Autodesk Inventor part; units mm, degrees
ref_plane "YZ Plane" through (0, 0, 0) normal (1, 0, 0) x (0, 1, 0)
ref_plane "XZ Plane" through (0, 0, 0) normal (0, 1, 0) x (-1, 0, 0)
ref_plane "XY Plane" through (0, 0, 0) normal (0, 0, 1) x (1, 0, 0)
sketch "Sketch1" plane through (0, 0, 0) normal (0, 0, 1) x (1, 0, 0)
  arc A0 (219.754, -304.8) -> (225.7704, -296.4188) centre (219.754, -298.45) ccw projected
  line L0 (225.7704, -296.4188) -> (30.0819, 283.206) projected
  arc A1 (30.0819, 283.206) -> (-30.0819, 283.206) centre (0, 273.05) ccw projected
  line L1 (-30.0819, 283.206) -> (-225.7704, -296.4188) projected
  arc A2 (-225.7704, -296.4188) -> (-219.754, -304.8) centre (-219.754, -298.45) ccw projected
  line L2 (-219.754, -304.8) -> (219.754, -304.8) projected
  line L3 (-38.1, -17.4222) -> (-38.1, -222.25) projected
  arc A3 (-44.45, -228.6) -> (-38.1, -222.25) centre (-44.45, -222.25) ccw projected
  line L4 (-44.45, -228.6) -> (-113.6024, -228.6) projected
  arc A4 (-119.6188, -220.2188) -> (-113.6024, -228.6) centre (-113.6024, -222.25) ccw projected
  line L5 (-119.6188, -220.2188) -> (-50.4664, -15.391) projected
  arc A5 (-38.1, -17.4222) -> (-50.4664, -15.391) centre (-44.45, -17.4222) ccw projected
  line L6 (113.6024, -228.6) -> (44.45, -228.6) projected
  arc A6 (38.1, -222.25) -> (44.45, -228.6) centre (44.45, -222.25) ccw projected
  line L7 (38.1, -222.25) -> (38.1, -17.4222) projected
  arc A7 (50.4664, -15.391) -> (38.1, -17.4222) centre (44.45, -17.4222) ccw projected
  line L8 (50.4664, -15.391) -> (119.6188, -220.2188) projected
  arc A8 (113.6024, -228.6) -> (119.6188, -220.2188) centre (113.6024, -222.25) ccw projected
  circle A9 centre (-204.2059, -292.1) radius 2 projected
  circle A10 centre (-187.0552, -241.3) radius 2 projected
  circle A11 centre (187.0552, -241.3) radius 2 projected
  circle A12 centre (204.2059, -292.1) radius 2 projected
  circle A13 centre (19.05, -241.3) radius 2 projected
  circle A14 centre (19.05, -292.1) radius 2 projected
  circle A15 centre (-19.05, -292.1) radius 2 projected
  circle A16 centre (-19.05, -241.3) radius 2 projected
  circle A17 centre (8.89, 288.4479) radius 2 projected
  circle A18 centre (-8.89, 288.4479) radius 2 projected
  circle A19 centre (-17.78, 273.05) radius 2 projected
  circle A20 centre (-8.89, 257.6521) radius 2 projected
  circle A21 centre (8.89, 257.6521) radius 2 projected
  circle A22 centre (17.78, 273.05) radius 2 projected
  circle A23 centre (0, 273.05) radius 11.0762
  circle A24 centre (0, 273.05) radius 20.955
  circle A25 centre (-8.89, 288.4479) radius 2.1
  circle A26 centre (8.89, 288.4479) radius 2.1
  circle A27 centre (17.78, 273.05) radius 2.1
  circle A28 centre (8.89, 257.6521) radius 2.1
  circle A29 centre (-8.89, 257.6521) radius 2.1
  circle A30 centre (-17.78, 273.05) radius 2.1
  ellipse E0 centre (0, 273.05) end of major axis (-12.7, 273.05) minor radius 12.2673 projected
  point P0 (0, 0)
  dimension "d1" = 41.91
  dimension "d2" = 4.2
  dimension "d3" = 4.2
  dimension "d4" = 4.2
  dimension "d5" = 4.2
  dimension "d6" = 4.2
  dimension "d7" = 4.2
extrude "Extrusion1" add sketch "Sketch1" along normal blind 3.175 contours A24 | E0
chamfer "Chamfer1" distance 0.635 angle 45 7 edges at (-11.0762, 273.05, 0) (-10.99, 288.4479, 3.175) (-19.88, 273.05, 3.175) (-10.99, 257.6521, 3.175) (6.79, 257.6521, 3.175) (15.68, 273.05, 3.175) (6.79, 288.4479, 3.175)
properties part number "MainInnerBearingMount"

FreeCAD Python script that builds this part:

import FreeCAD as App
import Part
import Sketcher
from FreeCAD import Vector
Q = App.Units.Quantity


def edges_at(feature, points):
    """Names of the edges that pass closest to the given points."""
    edges = feature.Shape.Edges
    near = lambda p: min(range(len(edges)), key=lambda i: edges[i].distToShape(Part.Vertex(*p))[0])
    return sorted({f"Edge{near(p) + 1}" for p in points})

doc = App.newDocument("Part")
body = doc.addObject("PartDesign::Body", "Body")

# Sketch on XY plane
sketch1 = body.newObject("Sketcher::SketchObject", "Sketch")
sketch1.AttachmentSupport = (doc.getObject("XY_Plane"), [""])
sketch1.MapMode = "FlatFace"
sketch1.addGeometry([
    Part.Circle(Vector(0, 273.1, 0), Vector(0, 0, 1), 21),  # 0
    Part.Circle(Vector(-8.9, 257.7, 0), Vector(0, 0, 1), 2.1),  # 1
    Part.Circle(Vector(-17.8, 273.1, 0), Vector(0, 0, 1), 2.1),  # 2
    Part.Circle(Vector(-8.9, 288.4, 0), Vector(0, 0, 1), 2.1),  # 3
    Part.Circle(Vector(8.9, 257.7, 0), Vector(0, 0, 1), 2.1),  # 4
    Part.Circle(Vector(17.8, 273.1, 0), Vector(0, 0, 1), 2.1),  # 5
    Part.Circle(Vector(8.9, 288.4, 0), Vector(0, 0, 1), 2.1),  # 6
    Part.Circle(Vector(0, 273.1, 0), Vector(0, 0, 1), 11.1),  # 7
], False)
sketch1.addConstraint([
    Sketcher.Constraint("Coincident", 7, 3, 0, 3),
    Sketcher.Constraint("Equal", 1, 2),
    Sketcher.Constraint("Equal", 2, 3),
    Sketcher.Constraint("Equal", 3, 4),
    Sketcher.Constraint("Equal", 4, 5),
    Sketcher.Constraint("Equal", 5, 6),
    Sketcher.Constraint("Symmetric", 1, 3, 4, 3, -2),
    Sketcher.Constraint("Symmetric", 2, 3, 5, 3, -2),
    Sketcher.Constraint("Symmetric", 3, 3, 6, 3, -2),
    Sketcher.Constraint("PointOnObject", 0, 3, -2),
    Sketcher.Constraint("Horizontal", 0, 3, 2, 3),
    Sketcher.Constraint("Vertical", 1, 3, 3, 3),
    Sketcher.Constraint("Diameter", 0, Q("1.65 in")),
    Sketcher.Constraint("Diameter", 1, Q("4.2 mm")),
    Sketcher.Constraint("DistanceX", 2, 3, -1, 1, Q("0.7 in")),
    Sketcher.Constraint("DistanceX", 1, 3, 4, 3, Q("0.7 in")),
    Sketcher.Constraint("Diameter", 7, Q("22.1524 mm")),
    Sketcher.Constraint("DistanceY", -1, 1, 0, 3, Q("10.75 in")),
    Sketcher.Constraint("DistanceY", -1, 1, 1, 3, Q("257.652 mm")),
    Sketcher.Constraint("DistanceY", -1, 1, 3, 3, Q("288.448 mm")),
])
pad1 = body.newObject("PartDesign::Pad", "Pad")
pad1.Profile = sketch1
pad1.Length = Q("0.125 in")
doc.recompute()

chamfer = body.newObject("PartDesign::Chamfer", "Chamfer")
chamfer.Base = (pad1, edges_at(pad1, [
    (-11.076, 273.05, 0),
    (-10.99, 288.448, 3.175),
    (-19.88, 273.05, 3.175),
    (-10.99, 257.652, 3.175),
    (6.79, 257.652, 3.175),
    (15.68, 273.05, 3.175),
    (6.79, 288.448, 3.175),
]))
chamfer.Size = Q("0.025 in")

doc.recompute()
